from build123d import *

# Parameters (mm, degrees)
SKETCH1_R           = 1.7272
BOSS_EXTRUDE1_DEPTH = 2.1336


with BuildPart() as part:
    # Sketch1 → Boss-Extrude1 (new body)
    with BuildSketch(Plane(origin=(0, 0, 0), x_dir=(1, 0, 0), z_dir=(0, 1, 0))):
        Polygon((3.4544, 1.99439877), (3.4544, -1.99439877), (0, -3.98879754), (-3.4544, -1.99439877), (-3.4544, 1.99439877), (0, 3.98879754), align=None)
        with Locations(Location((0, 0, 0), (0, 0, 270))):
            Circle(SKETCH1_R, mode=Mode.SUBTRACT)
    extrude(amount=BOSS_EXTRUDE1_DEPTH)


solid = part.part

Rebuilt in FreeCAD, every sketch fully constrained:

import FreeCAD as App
import Part
import Sketcher
Q = App.Units.Quantity


def add_polygon(sketch, points):
    """Adds a closed chain of lines whose ends are joined by coincident constraints."""
    first, n = sketch.GeometryCount, len(points)
    for a, b in zip(points, points[1:] + points[:1]):
        sketch.addGeometry(Part.LineSegment(App.Vector(*a, 0), App.Vector(*b, 0)), False)
    for i in range(n):
        sketch.addConstraint(Sketcher.Constraint("Coincident", first + i, 2, first + (i + 1) % n, 1))

doc = App.newDocument("Part")
params = doc.addObject("Spreadsheet::Sheet", "Params")
for row, (alias, value) in enumerate([
    ("sketch1_diameter", "0.136 in"),
    ("pad1_length", "0.084 in"),
], start=1):
    params.set(f"A{row}", alias)
    params.set(f"B{row}", "=" + value)
    params.setAlias(f"B{row}", alias)

body = doc.addObject("PartDesign::Body", "Body")

# Sketch on XZ plane
sketch1 = body.newObject("Sketcher::SketchObject", "Sketch")
sketch1.AttachmentSupport = (doc.getObject("XZ_Plane"), [""])
sketch1.MapMode = "FlatFace"
add_polygon(sketch1, [(3.5, 2), (3.5, -2), (0, -4), (-3.5, -2), (-3.5, 2), (0, 4)])  # lines 0-5
sketch1.addGeometry(Part.Circle(App.Vector(0, 0, 0), App.Vector(0, 0, 1), 1.7), False)  # 6
sketch1.addConstraint([
    Sketcher.Constraint("Vertical", 0),
    Sketcher.Constraint("Vertical", 3),
    Sketcher.Constraint("Coincident", 6, 3, -1, 1),
    Sketcher.Constraint("Symmetric", 0, 2, 3, 2, -1, 1),
    Sketcher.Constraint("Symmetric", 1, 2, 4, 2, -1, 1),
    Sketcher.Constraint("PointOnObject", 1, 2, -2),
    Sketcher.Constraint("Parallel", 2, 5),
    Sketcher.Constraint("Horizontal", 0, 2, 2, 2),
    Sketcher.Constraint("Diameter", 6, Q("0.136 in")),
    Sketcher.Constraint("Angle", 1, Q("-150 deg")),
    Sketcher.Constraint("DistanceX", -1, 1, 0, 2, Q("0.136 in")),
    Sketcher.Constraint("DistanceY", 0, 2, -1, 1, 1.994399),
])
sketch1.setExpression("Constraints[14]", "Params.sketch1_diameter")
pad1 = body.newObject("PartDesign::Pad", "Pad")
pad1.Profile = sketch1
pad1.setExpression("Length", "Params.pad1_length")
pad1.Reversed = True

doc.recompute()
